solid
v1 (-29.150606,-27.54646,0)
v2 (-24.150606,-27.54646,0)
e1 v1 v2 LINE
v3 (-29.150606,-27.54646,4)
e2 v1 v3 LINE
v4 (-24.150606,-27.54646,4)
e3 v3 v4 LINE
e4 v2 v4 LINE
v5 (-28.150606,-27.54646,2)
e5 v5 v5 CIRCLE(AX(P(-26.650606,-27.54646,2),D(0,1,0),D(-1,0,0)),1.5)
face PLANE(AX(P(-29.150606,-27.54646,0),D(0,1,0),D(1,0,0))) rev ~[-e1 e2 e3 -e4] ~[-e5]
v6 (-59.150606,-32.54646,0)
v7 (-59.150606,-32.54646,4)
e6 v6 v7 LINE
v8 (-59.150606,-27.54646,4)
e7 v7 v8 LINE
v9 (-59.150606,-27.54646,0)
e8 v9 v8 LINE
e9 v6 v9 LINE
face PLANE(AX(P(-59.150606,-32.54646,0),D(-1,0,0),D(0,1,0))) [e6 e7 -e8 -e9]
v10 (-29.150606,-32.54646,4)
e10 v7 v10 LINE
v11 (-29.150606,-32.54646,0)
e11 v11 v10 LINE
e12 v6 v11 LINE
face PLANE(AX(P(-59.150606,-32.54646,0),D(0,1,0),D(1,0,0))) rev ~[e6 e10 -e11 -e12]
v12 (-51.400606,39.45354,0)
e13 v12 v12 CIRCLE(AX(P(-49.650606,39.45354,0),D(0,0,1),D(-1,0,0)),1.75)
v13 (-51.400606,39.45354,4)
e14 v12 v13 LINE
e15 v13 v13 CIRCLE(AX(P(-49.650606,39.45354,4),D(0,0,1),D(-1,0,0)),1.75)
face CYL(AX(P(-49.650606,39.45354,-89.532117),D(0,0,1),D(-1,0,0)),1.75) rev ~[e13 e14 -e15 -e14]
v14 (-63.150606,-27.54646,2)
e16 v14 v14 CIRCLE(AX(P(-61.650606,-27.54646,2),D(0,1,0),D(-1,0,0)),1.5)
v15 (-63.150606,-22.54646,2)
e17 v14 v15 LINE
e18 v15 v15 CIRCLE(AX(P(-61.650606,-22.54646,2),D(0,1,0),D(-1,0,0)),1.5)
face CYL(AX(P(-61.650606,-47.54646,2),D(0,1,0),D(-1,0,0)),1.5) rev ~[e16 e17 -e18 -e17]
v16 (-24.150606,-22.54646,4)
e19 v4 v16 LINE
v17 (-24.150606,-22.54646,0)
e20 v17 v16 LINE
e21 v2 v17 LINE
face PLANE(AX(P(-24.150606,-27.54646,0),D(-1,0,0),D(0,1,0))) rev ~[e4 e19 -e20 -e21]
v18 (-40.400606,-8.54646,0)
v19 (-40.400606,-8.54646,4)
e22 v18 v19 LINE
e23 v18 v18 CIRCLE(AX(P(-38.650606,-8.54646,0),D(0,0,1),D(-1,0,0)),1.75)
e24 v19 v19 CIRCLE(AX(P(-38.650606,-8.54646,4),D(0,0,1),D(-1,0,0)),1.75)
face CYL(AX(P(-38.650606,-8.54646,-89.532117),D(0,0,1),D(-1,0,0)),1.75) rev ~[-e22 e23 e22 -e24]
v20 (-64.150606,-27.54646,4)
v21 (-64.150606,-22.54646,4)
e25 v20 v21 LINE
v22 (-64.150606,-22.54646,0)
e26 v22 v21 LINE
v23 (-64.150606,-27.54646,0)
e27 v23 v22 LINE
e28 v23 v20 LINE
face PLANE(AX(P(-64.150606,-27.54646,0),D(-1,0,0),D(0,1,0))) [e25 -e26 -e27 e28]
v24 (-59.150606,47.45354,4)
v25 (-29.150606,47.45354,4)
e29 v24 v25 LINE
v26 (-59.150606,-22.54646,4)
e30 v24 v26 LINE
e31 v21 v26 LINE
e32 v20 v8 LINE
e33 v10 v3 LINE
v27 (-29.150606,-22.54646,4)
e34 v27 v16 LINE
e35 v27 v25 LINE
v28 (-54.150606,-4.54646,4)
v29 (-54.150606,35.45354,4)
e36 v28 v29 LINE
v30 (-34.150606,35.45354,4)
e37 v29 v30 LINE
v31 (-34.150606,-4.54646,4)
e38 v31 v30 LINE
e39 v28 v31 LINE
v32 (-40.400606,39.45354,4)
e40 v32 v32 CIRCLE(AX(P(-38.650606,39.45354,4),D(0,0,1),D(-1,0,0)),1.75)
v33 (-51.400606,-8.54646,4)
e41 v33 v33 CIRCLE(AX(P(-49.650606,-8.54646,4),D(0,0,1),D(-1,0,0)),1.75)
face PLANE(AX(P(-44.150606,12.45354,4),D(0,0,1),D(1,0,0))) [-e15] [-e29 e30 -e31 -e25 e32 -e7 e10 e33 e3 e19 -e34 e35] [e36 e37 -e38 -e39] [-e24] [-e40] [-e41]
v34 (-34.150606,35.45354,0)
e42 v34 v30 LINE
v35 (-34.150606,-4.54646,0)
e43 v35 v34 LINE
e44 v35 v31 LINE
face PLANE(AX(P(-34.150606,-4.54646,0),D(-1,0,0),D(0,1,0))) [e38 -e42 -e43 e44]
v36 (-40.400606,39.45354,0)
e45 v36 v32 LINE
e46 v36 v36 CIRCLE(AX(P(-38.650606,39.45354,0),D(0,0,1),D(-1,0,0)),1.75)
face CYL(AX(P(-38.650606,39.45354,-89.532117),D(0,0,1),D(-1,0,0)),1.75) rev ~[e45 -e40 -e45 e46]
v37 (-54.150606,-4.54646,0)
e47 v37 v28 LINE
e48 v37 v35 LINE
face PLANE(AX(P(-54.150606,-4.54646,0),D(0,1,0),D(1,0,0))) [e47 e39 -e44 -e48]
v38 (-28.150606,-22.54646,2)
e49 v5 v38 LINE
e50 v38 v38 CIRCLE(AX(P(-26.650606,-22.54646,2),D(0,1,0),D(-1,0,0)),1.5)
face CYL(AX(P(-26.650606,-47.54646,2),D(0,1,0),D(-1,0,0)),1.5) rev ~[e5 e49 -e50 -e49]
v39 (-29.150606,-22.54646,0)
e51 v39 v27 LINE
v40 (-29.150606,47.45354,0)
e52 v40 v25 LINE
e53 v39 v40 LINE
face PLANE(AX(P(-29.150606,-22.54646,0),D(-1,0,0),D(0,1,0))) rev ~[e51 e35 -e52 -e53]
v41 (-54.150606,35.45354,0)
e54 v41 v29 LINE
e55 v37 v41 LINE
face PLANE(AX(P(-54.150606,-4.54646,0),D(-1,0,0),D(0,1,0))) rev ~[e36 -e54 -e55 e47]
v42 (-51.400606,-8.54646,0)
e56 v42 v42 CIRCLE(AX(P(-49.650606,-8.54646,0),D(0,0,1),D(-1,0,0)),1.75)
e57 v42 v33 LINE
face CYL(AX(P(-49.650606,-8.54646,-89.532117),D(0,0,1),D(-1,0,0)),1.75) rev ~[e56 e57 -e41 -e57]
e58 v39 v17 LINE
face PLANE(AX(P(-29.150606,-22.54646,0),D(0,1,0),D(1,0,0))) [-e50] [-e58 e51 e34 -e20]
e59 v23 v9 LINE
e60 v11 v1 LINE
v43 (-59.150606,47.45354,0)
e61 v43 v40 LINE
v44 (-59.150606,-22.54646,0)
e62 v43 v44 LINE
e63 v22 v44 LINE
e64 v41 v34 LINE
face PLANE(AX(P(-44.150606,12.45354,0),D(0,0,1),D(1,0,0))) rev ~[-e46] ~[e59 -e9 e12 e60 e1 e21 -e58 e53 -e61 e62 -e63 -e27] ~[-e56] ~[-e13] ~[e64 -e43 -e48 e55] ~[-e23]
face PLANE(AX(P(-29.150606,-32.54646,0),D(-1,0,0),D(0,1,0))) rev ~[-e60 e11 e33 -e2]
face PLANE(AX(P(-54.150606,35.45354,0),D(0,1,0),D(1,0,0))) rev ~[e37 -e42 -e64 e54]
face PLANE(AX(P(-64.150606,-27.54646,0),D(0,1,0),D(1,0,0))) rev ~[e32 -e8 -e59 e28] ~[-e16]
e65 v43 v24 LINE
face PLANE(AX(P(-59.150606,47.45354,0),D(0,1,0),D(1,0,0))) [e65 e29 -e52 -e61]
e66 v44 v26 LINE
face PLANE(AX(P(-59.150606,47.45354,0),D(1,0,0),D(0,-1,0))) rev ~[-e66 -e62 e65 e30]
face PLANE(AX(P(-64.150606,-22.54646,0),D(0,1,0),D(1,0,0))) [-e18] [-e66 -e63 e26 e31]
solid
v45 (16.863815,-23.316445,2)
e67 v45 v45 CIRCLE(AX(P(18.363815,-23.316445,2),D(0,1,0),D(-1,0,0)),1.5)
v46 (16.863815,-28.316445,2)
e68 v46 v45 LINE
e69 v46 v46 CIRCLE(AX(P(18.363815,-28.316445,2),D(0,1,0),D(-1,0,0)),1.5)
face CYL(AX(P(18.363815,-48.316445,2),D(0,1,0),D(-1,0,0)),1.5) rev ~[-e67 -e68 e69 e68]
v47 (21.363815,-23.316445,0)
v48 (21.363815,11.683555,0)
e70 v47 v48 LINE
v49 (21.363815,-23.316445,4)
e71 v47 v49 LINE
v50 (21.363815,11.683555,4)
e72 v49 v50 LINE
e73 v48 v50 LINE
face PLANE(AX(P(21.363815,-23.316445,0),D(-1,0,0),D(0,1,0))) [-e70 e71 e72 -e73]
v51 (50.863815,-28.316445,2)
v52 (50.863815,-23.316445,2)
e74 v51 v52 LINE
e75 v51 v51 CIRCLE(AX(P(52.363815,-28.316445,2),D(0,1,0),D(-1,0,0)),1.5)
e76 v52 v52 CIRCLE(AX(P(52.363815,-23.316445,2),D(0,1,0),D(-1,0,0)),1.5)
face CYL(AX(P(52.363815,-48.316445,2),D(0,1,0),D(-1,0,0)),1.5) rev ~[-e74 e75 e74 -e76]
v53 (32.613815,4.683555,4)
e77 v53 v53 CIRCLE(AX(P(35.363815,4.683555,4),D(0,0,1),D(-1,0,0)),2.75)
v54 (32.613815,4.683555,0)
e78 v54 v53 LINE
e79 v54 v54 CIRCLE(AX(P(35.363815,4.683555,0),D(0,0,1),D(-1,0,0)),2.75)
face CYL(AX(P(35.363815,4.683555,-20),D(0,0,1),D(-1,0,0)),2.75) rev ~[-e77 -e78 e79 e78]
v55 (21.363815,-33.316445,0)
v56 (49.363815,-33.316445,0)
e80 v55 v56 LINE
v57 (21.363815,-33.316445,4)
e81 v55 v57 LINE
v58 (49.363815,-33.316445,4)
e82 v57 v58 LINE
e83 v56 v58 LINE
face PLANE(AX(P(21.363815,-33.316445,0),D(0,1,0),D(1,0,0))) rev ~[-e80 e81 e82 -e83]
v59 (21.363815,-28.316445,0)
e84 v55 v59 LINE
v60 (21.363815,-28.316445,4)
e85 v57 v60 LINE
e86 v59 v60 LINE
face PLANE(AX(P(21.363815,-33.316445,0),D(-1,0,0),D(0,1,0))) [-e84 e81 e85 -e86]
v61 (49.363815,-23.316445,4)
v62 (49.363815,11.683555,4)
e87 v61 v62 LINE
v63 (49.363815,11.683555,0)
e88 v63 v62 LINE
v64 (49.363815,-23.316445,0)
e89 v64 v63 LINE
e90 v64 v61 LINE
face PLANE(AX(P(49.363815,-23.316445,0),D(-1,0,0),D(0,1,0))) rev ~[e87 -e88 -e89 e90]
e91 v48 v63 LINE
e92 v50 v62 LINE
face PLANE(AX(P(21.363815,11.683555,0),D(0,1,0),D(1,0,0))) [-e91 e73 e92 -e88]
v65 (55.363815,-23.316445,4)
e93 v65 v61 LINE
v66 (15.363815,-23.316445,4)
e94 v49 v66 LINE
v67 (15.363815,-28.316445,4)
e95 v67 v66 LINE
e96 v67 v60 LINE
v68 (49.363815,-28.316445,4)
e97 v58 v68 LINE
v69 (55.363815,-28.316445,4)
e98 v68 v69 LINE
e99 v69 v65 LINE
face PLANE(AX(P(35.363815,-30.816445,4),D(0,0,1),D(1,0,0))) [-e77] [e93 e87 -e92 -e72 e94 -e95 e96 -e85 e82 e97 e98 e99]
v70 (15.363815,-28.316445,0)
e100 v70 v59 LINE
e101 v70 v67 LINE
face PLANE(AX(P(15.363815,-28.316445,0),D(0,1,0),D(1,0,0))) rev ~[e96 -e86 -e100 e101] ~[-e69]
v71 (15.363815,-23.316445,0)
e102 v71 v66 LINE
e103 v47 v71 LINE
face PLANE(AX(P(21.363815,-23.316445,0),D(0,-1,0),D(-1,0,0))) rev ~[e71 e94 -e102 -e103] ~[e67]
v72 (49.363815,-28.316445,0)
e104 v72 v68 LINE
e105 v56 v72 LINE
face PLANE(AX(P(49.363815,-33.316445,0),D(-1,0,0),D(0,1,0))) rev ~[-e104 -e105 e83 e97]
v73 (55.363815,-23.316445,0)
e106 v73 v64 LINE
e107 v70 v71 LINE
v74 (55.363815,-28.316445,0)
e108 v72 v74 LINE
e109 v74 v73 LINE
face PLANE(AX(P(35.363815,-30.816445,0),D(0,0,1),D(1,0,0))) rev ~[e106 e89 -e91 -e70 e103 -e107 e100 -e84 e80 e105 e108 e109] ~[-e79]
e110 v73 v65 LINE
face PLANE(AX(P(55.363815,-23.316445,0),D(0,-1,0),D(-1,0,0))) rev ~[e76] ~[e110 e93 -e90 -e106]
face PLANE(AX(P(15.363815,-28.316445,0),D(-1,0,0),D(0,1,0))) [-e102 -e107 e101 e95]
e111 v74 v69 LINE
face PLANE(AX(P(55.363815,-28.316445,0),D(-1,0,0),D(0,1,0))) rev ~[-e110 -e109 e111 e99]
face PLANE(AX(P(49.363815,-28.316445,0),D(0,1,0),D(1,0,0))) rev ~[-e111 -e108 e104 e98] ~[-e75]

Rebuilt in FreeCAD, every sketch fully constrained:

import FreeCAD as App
import Part
import Sketcher
Q = App.Units.Quantity


def add_polygon(sketch, points):
    """Adds a closed chain of lines whose ends are joined by coincident constraints."""
    first, n = sketch.GeometryCount, len(points)
    for a, b in zip(points, points[1:] + points[:1]):
        sketch.addGeometry(Part.LineSegment(App.Vector(*a, 0), App.Vector(*b, 0)), False)
    for i in range(n):
        sketch.addConstraint(Sketcher.Constraint("Coincident", first + i, 2, first + (i + 1) % n, 1))

doc = App.newDocument("Part")
body = doc.addObject("PartDesign::Body", "Body")

# Sketch on XY plane
sketch1 = body.newObject("Sketcher::SketchObject", "Sketch")
sketch1.AttachmentSupport = (doc.getObject("XY_Plane"), [""])
sketch1.MapMode = "FlatFace"
add_polygon(sketch1, [(-59.2, 47.5), (-59.2, -22.5), (-64.2, -22.5), (-64.2, -27.5), (-59.2, -27.5), (-59.2, -32.5), (-29.2, -32.5), (-29.2, -27.5), (-24.2, -27.5), (-24.2, -22.5), (-29.2, -22.5), (-29.2, 47.5)])  # lines 0-11
add_polygon(sketch1, [(-34.2, -4.5), (-54.2, -4.5), (-54.2, 35.5), (-34.2, 35.5)])  # lines 12-15
sketch1.addConstraint(Sketcher.Constraint("Vertical", 0))
sketch1.addConstraint(Sketcher.Constraint("Horizontal", 1))
sketch1.addConstraint(Sketcher.Constraint("Vertical", 2))
sketch1.addConstraint(Sketcher.Constraint("Horizontal", 3))
sketch1.addConstraint(Sketcher.Constraint("Vertical", 4))
sketch1.addConstraint(Sketcher.Constraint("Horizontal", 5))
sketch1.addConstraint(Sketcher.Constraint("Vertical", 6))
sketch1.addConstraint(Sketcher.Constraint("Horizontal", 7))
sketch1.addConstraint(Sketcher.Constraint("Vertical", 8))
sketch1.addConstraint(Sketcher.Constraint("Horizontal", 9))
sketch1.addConstraint(Sketcher.Constraint("Vertical", 10))
sketch1.addConstraint(Sketcher.Constraint("Horizontal", 11))
sketch1.addConstraint(Sketcher.Constraint("Horizontal", 12))
sketch1.addConstraint(Sketcher.Constraint("Vertical", 13))
sketch1.addConstraint(Sketcher.Constraint("Horizontal", 14))
sketch1.addConstraint(Sketcher.Constraint("Vertical", 15))
sketch1.addConstraint(Sketcher.Constraint("Horizontal", 3, 2, 6, 2))
sketch1.addConstraint(Sketcher.Constraint("Horizontal", 1, 2, 8, 2))
sketch1.addConstraint(Sketcher.Constraint("Vertical", 0, 2, 3, 2))
sketch1.addConstraint(Sketcher.Constraint("Vertical", 6, 2, 9, 2))
sketch1.addConstraint(Sketcher.Constraint("Equal", 3, 7))
sketch1.addConstraint(Sketcher.Constraint("Equal", 9, 2))
sketch1.addConstraint(Sketcher.Constraint("Equal", 2, 4))
sketch1.addConstraint(Sketcher.Constraint("DistanceX", 1, 2, 1, 1, Q("5 mm")))
sketch1.addConstraint(Sketcher.Constraint("DistanceX", 5, 1, 5, 2, Q("30 mm")))
sketch1.addConstraint(Sketcher.Constraint("DistanceX", 12, 2, 12, 1, Q("20 mm")))
sketch1.addConstraint(Sketcher.Constraint("DistanceY", 0, 2, 0, 1, Q("70 mm")))
sketch1.addConstraint(Sketcher.Constraint("DistanceY", 13, 1, 13, 2, Q("40 mm")))
sketch1.addConstraint(Sketcher.Constraint("DistanceX", 0, 2, 12, 2, Q("5 mm")))
sketch1.addConstraint(Sketcher.Constraint("DistanceY", 0, 2, 12, 2, Q("18 mm")))
sketch1.addConstraint(Sketcher.Constraint("DistanceY", 0, 2, -1, 1, Q("22.54646 mm")))
sketch1.addConstraint(Sketcher.Constraint("DistanceX", 0, 2, -1, 1, Q("59.150606 mm")))
pad1 = body.newObject("PartDesign::Pad", "Pad")
pad1.Profile = sketch1
pad1.Length = 4

# Sketch on XZ plane
sketch2 = body.newObject("Sketcher::SketchObject", "Sketch001")
sketch2.AttachmentSupport = (doc.getObject("XZ_Plane"), [""])
sketch2.MapMode = "FlatFace"
sketch2.AttachmentOffset = App.Placement(App.Vector(0, 0, 27.54646), App.Rotation())
sketch2.addGeometry(Part.Circle(App.Vector(-61.7, 2, 0), App.Vector(0, 0, 1), 1.5), False)
sketch2.addConstraint(Sketcher.Constraint("Diameter", 0, Q("3 mm")))
sketch2.addConstraint(Sketcher.Constraint("DistanceY", -1, 1, 0, 3, Q("2 mm")))
sketch2.addConstraint(Sketcher.Constraint("DistanceX", 0, 3, -1, 1, Q("61.650606 mm")))
doc.recompute()
hole = body.newObject("PartDesign::Hole", "Hole")
hole.Profile = sketch2
hole.ThreadType = "None"
hole.Diameter = 3
hole.DepthType = "Dimension"
hole.Depth = 20
hole.DrillPoint = "Angled"
hole.DrillPointAngle = 118

# Sketch on XZ plane
sketch3 = body.newObject("Sketcher::SketchObject", "Sketch002")
sketch3.AttachmentSupport = (doc.getObject("XZ_Plane"), [""])
sketch3.MapMode = "FlatFace"
sketch3.AttachmentOffset = App.Placement(App.Vector(0, 0, 27.54646), App.Rotation())
sketch3.addGeometry(Part.Circle(App.Vector(-26.7, 2, 0), App.Vector(0, 0, 1), 1.5), False)
sketch3.addConstraint(Sketcher.Constraint("Diameter", 0, Q("3 mm")))
sketch3.addConstraint(Sketcher.Constraint("DistanceY", -1, 1, 0, 3, Q("2 mm")))
sketch3.addConstraint(Sketcher.Constraint("DistanceX", 0, 3, -1, 1, Q("26.650606 mm")))
doc.recompute()
hole2 = body.newObject("PartDesign::Hole", "Hole001")
hole2.Profile = sketch3
hole2.ThreadType = "None"
hole2.Diameter = 3
hole2.DepthType = "Dimension"
hole2.Depth = 20
hole2.DrillPoint = "Angled"
hole2.DrillPointAngle = 118

# Sketch on XY plane
sketch4 = body.newObject("Sketcher::SketchObject", "Sketch003")
sketch4.AttachmentSupport = (doc.getObject("XY_Plane"), [""])
sketch4.MapMode = "FlatFace"
sketch4.addGeometry(Part.Circle(App.Vector(-49.7, 39.5, 0), App.Vector(0, 0, 1), 1.8), False)
sketch4.addGeometry(Part.Circle(App.Vector(-38.7, 39.5, 0), App.Vector(0, 0, 1), 1.8), False)
sketch4.addGeometry(Part.Circle(App.Vector(-49.7, -8.5, 0), App.Vector(0, 0, 1), 1.8), False)
sketch4.addGeometry(Part.Circle(App.Vector(-38.7, -8.5, 0), App.Vector(0, 0, 1), 1.8), False)
sketch4.addConstraint(Sketcher.Constraint("Equal", 0, 1))
sketch4.addConstraint(Sketcher.Constraint("Equal", 1, 2))
sketch4.addConstraint(Sketcher.Constraint("Equal", 2, 3))
sketch4.addConstraint(Sketcher.Constraint("Horizontal", 0, 3, 1, 3))
sketch4.addConstraint(Sketcher.Constraint("Horizontal", 2, 3, 3, 3))
sketch4.addConstraint(Sketcher.Constraint("Vertical", 0, 3, 2, 3))
sketch4.addConstraint(Sketcher.Constraint("Vertical", 1, 3, 3, 3))
sketch4.addConstraint(Sketcher.Constraint("Diameter", 0, Q("3.5 mm")))
sketch4.addConstraint(Sketcher.Constraint("DistanceX", 0, 3, 1, 3, Q("11 mm")))
sketch4.addConstraint(Sketcher.Constraint("DistanceY", 2, 3, 0, 3, Q("48 mm")))
sketch4.addConstraint(Sketcher.Constraint("DistanceY", -1, 1, 0, 3, Q("39.45354 mm")))
sketch4.addConstraint(Sketcher.Constraint("DistanceX", 0, 3, -1, 1, Q("49.650606 mm")))
doc.recompute()
hole3 = body.newObject("PartDesign::Hole", "Hole002")
hole3.Profile = sketch4
hole3.ThreadType = "None"
hole3.Diameter = 3.5
hole3.DepthType = "ThroughAll"
hole3.Reversed = True
body2 = doc.addObject("PartDesign::Body", "Body001")

# Sketch on XY plane
sketch5 = body2.newObject("Sketcher::SketchObject", "Sketch004")
sketch5.AttachmentSupport = (doc.getObject("XY_Plane001"), [""])
sketch5.MapMode = "FlatFace"
add_polygon(sketch5, [(21.4, -28.3), (21.4, -33.3), (49.4, -33.3), (49.4, -28.3), (55.4, -28.3), (55.4, -23.3), (49.4, -23.3), (49.4, 11.7), (21.4, 11.7), (21.4, -23.3), (15.4, -23.3), (15.4, -28.3)])  # lines 0-11
sketch5.addConstraint(Sketcher.Constraint("Vertical", 0))
sketch5.addConstraint(Sketcher.Constraint("Horizontal", 1))
sketch5.addConstraint(Sketcher.Constraint("Vertical", 2))
sketch5.addConstraint(Sketcher.Constraint("Horizontal", 3))
sketch5.addConstraint(Sketcher.Constraint("Vertical", 4))
sketch5.addConstraint(Sketcher.Constraint("Horizontal", 5))
sketch5.addConstraint(Sketcher.Constraint("Vertical", 6))
sketch5.addConstraint(Sketcher.Constraint("Horizontal", 7))
sketch5.addConstraint(Sketcher.Constraint("Vertical", 8))
sketch5.addConstraint(Sketcher.Constraint("Horizontal", 9))
sketch5.addConstraint(Sketcher.Constraint("Vertical", 10))
sketch5.addConstraint(Sketcher.Constraint("Horizontal", 11))
sketch5.addConstraint(Sketcher.Constraint("Horizontal", 5, 2, 8, 2))
sketch5.addConstraint(Sketcher.Constraint("Horizontal", 3, 2, 10, 2))
sketch5.addConstraint(Sketcher.Constraint("Vertical", 2, 2, 5, 2))
sketch5.addConstraint(Sketcher.Constraint("Vertical", 0, 2, 7, 2))
sketch5.addConstraint(Sketcher.Constraint("Equal", 5, 9))
sketch5.addConstraint(Sketcher.Constraint("Equal", 2, 4))
sketch5.addConstraint(Sketcher.Constraint("DistanceX", 1, 1, 1, 2, Q("28 mm")))
sketch5.addConstraint(Sketcher.Constraint("DistanceX", 3, 1, 3, 2, Q("6 mm")))
sketch5.addConstraint(Sketcher.Constraint("DistanceY", 0, 2, 0, 1, Q("5 mm")))
sketch5.addConstraint(Sketcher.Constraint("DistanceY", 6, 1, 6, 2, Q("35 mm")))
sketch5.addConstraint(Sketcher.Constraint("DistanceX", -1, 1, 0, 2, Q("21.363815 mm")))
sketch5.addConstraint(Sketcher.Constraint("DistanceY", 0, 2, -1, 1, Q("33.316445 mm")))
pad2 = body2.newObject("PartDesign::Pad", "Pad001")
pad2.Profile = sketch5
pad2.Length = 4

# Sketch on XZ plane
sketch6 = body2.newObject("Sketcher::SketchObject", "Sketch005")
sketch6.AttachmentSupport = (doc.getObject("XZ_Plane001"), [""])
sketch6.MapMode = "FlatFace"
sketch6.AttachmentOffset = App.Placement(App.Vector(0, 0, 28.316445), App.Rotation())
sketch6.addGeometry(Part.Circle(App.Vector(18.4, 2, 0), App.Vector(0, 0, 1), 1.5), False)
sketch6.addConstraint(Sketcher.Constraint("Diameter", 0, Q("3 mm")))
sketch6.addConstraint(Sketcher.Constraint("DistanceY", -1, 1, 0, 3, Q("2 mm")))
sketch6.addConstraint(Sketcher.Constraint("DistanceX", -1, 1, 0, 3, Q("18.363815 mm")))
doc.recompute()
hole4 = body2.newObject("PartDesign::Hole", "Hole003")
hole4.Profile = sketch6
hole4.ThreadType = "None"
hole4.Diameter = 3
hole4.DepthType = "Dimension"
hole4.Depth = 20
hole4.DrillPoint = "Angled"
hole4.DrillPointAngle = 118

# Sketch on XZ plane
sketch7 = body2.newObject("Sketcher::SketchObject", "Sketch006")
sketch7.AttachmentSupport = (doc.getObject("XZ_Plane001"), [""])
sketch7.MapMode = "FlatFace"
sketch7.AttachmentOffset = App.Placement(App.Vector(0, 0, 28.316445), App.Rotation())
sketch7.addGeometry(Part.Circle(App.Vector(52.4, 2, 0), App.Vector(0, 0, 1), 1.5), False)
sketch7.addConstraint(Sketcher.Constraint("Diameter", 0, Q("3 mm")))
sketch7.addConstraint(Sketcher.Constraint("DistanceY", -1, 1, 0, 3, Q("2 mm")))
sketch7.addConstraint(Sketcher.Constraint("DistanceX", -1, 1, 0, 3, Q("52.363815 mm")))
doc.recompute()
hole5 = body2.newObject("PartDesign::Hole", "Hole004")
hole5.Profile = sketch7
hole5.ThreadType = "None"
hole5.Diameter = 3
hole5.DepthType = "Dimension"
hole5.Depth = 20
hole5.DrillPoint = "Angled"
hole5.DrillPointAngle = 118

# Sketch on XY plane
sketch8 = body2.newObject("Sketcher::SketchObject", "Sketch007")
sketch8.AttachmentSupport = (doc.getObject("XY_Plane001"), [""])
sketch8.MapMode = "FlatFace"
sketch8.addGeometry(Part.Circle(App.Vector(35.4, 4.7, 0), App.Vector(0, 0, 1), 2.8), False)
sketch8.addConstraint(Sketcher.Constraint("Diameter", 0, Q("5.5 mm")))
sketch8.addConstraint(Sketcher.Constraint("DistanceX", -1, 1, 0, 3, Q("35.363815 mm")))
sketch8.addConstraint(Sketcher.Constraint("DistanceY", -1, 1, 0, 3, Q("4.683555 mm")))
doc.recompute()
hole6 = body2.newObject("PartDesign::Hole", "Hole005")
hole6.Profile = sketch8
hole6.ThreadType = "None"
hole6.Diameter = 5.5
hole6.DepthType = "Dimension"
hole6.Depth = 20
hole6.DrillPoint = "Angled"
hole6.DrillPointAngle = 118
hole6.Reversed = True

doc.recompute()
